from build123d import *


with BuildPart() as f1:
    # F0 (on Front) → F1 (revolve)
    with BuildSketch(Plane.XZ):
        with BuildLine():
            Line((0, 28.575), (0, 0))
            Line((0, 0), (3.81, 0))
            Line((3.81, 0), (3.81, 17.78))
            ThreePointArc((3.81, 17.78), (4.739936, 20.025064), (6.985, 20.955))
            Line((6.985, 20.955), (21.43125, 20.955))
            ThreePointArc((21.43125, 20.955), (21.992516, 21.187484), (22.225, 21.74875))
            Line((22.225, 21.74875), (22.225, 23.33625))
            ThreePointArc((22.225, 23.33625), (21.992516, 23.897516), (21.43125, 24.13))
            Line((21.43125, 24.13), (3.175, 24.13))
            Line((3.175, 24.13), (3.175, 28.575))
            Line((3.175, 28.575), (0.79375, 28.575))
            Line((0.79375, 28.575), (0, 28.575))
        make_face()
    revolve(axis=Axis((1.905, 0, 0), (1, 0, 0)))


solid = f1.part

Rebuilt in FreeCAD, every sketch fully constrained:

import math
import FreeCAD as App
import Part
import Sketcher
from FreeCAD import Vector
Q = App.Units.Quantity

doc = App.newDocument("Part")
body = doc.addObject("PartDesign::Body", "Body")

sketch1 = doc.addObject("Sketcher::SketchObject", "Sketch")
body.addObject(sketch1)
sketch1.AttachmentSupport = (doc.XZ_Plane, [""])
sketch1.MapMode = "FlatFace"
sketch1.addGeometry([
    Part.LineSegment(Vector(0, 28.6, 0), Vector(0, 0, 0)),
    Part.LineSegment(Vector(0, 0, 0), Vector(3.8, 0, 0)),
    Part.LineSegment(Vector(3.8, 0, 0), Vector(3.8, 17.8, 0)),
    Part.ArcOfCircle(Part.Circle(Vector(7, 17.8, 0), Vector(0, 0, 1), 3.2), math.radians(90), math.radians(180)),
    Part.LineSegment(Vector(7, 21, 0), Vector(21.4, 21, 0)),
    Part.ArcOfCircle(Part.Circle(Vector(21.4, 21.7, 0), Vector(0, 0, 1), 0.8), math.radians(-90), math.radians(0)),
    Part.LineSegment(Vector(22.2, 21.7, 0), Vector(22.2, 23.3, 0)),
    Part.ArcOfCircle(Part.Circle(Vector(21.4, 23.3, 0), Vector(0, 0, 1), 0.8), math.radians(0), math.radians(90)),
    Part.LineSegment(Vector(21.4, 24.1, 0), Vector(3.2, 24.1, 0)),
    Part.LineSegment(Vector(3.2, 24.1, 0), Vector(3.2, 28.6, 0)),
    Part.LineSegment(Vector(3.2, 28.6, 0), Vector(0, 28.6, 0)),
], False)
sketch1.addConstraint([
    Sketcher.Constraint("Coincident", 0, 2, 1, 1),
    Sketcher.Constraint("Coincident", 1, 2, 2, 1),
    Sketcher.Constraint("Tangent", 2, 2, 3, 2),
    Sketcher.Constraint("Tangent", 3, 1, 4, 1),
    Sketcher.Constraint("Tangent", 4, 2, 5, 1),
    Sketcher.Constraint("Tangent", 5, 2, 6, 1),
    Sketcher.Constraint("Tangent", 6, 2, 7, 1),
    Sketcher.Constraint("Tangent", 7, 2, 8, 1),
    Sketcher.Constraint("Coincident", 8, 2, 9, 1),
    Sketcher.Constraint("Coincident", 9, 2, 10, 1),
    Sketcher.Constraint("Coincident", 10, 2, 0, 1),
    Sketcher.Constraint("Vertical", 0),
    Sketcher.Constraint("Horizontal", 1),
    Sketcher.Constraint("Vertical", 2),
    Sketcher.Constraint("Horizontal", 4),
    Sketcher.Constraint("Vertical", 6),
    Sketcher.Constraint("Horizontal", 8),
    Sketcher.Constraint("Vertical", 9),
    Sketcher.Constraint("Horizontal", 10),
    Sketcher.Constraint("Coincident", 0, 2, -1, 1),
    Sketcher.Constraint("Equal", 5, 7),
    Sketcher.Constraint("DistanceY", 2, 1, 2, 2, Q("0.7 in")),
    Sketcher.Constraint("Radius", 3, Q("0.125 in")),
    Sketcher.Constraint("Radius", 5, Q("0.03125 in")),
    Sketcher.Constraint("DistanceX", 1, 1, 1, 2, Q("0.15 in")),
    Sketcher.Constraint("DistanceX", 3, 1, 5, 2, Q("0.6 in")),
    Sketcher.Constraint("DistanceY", 3, 1, 9, 2, Q("0.3 in")),
    Sketcher.Constraint("DistanceX", 8, 2, 8, 1, Q("0.71875 in")),
    Sketcher.Constraint("DistanceY", 6, 1, 6, 2, Q("0.0625 in")),
])
revolution = doc.addObject("PartDesign::Revolution", "Revolution")
body.addObject(revolution)
revolution.Profile = sketch1
revolution.ReferenceAxis = (sketch1, ["H_Axis"])
revolution.Angle = 360

doc.recompute()
